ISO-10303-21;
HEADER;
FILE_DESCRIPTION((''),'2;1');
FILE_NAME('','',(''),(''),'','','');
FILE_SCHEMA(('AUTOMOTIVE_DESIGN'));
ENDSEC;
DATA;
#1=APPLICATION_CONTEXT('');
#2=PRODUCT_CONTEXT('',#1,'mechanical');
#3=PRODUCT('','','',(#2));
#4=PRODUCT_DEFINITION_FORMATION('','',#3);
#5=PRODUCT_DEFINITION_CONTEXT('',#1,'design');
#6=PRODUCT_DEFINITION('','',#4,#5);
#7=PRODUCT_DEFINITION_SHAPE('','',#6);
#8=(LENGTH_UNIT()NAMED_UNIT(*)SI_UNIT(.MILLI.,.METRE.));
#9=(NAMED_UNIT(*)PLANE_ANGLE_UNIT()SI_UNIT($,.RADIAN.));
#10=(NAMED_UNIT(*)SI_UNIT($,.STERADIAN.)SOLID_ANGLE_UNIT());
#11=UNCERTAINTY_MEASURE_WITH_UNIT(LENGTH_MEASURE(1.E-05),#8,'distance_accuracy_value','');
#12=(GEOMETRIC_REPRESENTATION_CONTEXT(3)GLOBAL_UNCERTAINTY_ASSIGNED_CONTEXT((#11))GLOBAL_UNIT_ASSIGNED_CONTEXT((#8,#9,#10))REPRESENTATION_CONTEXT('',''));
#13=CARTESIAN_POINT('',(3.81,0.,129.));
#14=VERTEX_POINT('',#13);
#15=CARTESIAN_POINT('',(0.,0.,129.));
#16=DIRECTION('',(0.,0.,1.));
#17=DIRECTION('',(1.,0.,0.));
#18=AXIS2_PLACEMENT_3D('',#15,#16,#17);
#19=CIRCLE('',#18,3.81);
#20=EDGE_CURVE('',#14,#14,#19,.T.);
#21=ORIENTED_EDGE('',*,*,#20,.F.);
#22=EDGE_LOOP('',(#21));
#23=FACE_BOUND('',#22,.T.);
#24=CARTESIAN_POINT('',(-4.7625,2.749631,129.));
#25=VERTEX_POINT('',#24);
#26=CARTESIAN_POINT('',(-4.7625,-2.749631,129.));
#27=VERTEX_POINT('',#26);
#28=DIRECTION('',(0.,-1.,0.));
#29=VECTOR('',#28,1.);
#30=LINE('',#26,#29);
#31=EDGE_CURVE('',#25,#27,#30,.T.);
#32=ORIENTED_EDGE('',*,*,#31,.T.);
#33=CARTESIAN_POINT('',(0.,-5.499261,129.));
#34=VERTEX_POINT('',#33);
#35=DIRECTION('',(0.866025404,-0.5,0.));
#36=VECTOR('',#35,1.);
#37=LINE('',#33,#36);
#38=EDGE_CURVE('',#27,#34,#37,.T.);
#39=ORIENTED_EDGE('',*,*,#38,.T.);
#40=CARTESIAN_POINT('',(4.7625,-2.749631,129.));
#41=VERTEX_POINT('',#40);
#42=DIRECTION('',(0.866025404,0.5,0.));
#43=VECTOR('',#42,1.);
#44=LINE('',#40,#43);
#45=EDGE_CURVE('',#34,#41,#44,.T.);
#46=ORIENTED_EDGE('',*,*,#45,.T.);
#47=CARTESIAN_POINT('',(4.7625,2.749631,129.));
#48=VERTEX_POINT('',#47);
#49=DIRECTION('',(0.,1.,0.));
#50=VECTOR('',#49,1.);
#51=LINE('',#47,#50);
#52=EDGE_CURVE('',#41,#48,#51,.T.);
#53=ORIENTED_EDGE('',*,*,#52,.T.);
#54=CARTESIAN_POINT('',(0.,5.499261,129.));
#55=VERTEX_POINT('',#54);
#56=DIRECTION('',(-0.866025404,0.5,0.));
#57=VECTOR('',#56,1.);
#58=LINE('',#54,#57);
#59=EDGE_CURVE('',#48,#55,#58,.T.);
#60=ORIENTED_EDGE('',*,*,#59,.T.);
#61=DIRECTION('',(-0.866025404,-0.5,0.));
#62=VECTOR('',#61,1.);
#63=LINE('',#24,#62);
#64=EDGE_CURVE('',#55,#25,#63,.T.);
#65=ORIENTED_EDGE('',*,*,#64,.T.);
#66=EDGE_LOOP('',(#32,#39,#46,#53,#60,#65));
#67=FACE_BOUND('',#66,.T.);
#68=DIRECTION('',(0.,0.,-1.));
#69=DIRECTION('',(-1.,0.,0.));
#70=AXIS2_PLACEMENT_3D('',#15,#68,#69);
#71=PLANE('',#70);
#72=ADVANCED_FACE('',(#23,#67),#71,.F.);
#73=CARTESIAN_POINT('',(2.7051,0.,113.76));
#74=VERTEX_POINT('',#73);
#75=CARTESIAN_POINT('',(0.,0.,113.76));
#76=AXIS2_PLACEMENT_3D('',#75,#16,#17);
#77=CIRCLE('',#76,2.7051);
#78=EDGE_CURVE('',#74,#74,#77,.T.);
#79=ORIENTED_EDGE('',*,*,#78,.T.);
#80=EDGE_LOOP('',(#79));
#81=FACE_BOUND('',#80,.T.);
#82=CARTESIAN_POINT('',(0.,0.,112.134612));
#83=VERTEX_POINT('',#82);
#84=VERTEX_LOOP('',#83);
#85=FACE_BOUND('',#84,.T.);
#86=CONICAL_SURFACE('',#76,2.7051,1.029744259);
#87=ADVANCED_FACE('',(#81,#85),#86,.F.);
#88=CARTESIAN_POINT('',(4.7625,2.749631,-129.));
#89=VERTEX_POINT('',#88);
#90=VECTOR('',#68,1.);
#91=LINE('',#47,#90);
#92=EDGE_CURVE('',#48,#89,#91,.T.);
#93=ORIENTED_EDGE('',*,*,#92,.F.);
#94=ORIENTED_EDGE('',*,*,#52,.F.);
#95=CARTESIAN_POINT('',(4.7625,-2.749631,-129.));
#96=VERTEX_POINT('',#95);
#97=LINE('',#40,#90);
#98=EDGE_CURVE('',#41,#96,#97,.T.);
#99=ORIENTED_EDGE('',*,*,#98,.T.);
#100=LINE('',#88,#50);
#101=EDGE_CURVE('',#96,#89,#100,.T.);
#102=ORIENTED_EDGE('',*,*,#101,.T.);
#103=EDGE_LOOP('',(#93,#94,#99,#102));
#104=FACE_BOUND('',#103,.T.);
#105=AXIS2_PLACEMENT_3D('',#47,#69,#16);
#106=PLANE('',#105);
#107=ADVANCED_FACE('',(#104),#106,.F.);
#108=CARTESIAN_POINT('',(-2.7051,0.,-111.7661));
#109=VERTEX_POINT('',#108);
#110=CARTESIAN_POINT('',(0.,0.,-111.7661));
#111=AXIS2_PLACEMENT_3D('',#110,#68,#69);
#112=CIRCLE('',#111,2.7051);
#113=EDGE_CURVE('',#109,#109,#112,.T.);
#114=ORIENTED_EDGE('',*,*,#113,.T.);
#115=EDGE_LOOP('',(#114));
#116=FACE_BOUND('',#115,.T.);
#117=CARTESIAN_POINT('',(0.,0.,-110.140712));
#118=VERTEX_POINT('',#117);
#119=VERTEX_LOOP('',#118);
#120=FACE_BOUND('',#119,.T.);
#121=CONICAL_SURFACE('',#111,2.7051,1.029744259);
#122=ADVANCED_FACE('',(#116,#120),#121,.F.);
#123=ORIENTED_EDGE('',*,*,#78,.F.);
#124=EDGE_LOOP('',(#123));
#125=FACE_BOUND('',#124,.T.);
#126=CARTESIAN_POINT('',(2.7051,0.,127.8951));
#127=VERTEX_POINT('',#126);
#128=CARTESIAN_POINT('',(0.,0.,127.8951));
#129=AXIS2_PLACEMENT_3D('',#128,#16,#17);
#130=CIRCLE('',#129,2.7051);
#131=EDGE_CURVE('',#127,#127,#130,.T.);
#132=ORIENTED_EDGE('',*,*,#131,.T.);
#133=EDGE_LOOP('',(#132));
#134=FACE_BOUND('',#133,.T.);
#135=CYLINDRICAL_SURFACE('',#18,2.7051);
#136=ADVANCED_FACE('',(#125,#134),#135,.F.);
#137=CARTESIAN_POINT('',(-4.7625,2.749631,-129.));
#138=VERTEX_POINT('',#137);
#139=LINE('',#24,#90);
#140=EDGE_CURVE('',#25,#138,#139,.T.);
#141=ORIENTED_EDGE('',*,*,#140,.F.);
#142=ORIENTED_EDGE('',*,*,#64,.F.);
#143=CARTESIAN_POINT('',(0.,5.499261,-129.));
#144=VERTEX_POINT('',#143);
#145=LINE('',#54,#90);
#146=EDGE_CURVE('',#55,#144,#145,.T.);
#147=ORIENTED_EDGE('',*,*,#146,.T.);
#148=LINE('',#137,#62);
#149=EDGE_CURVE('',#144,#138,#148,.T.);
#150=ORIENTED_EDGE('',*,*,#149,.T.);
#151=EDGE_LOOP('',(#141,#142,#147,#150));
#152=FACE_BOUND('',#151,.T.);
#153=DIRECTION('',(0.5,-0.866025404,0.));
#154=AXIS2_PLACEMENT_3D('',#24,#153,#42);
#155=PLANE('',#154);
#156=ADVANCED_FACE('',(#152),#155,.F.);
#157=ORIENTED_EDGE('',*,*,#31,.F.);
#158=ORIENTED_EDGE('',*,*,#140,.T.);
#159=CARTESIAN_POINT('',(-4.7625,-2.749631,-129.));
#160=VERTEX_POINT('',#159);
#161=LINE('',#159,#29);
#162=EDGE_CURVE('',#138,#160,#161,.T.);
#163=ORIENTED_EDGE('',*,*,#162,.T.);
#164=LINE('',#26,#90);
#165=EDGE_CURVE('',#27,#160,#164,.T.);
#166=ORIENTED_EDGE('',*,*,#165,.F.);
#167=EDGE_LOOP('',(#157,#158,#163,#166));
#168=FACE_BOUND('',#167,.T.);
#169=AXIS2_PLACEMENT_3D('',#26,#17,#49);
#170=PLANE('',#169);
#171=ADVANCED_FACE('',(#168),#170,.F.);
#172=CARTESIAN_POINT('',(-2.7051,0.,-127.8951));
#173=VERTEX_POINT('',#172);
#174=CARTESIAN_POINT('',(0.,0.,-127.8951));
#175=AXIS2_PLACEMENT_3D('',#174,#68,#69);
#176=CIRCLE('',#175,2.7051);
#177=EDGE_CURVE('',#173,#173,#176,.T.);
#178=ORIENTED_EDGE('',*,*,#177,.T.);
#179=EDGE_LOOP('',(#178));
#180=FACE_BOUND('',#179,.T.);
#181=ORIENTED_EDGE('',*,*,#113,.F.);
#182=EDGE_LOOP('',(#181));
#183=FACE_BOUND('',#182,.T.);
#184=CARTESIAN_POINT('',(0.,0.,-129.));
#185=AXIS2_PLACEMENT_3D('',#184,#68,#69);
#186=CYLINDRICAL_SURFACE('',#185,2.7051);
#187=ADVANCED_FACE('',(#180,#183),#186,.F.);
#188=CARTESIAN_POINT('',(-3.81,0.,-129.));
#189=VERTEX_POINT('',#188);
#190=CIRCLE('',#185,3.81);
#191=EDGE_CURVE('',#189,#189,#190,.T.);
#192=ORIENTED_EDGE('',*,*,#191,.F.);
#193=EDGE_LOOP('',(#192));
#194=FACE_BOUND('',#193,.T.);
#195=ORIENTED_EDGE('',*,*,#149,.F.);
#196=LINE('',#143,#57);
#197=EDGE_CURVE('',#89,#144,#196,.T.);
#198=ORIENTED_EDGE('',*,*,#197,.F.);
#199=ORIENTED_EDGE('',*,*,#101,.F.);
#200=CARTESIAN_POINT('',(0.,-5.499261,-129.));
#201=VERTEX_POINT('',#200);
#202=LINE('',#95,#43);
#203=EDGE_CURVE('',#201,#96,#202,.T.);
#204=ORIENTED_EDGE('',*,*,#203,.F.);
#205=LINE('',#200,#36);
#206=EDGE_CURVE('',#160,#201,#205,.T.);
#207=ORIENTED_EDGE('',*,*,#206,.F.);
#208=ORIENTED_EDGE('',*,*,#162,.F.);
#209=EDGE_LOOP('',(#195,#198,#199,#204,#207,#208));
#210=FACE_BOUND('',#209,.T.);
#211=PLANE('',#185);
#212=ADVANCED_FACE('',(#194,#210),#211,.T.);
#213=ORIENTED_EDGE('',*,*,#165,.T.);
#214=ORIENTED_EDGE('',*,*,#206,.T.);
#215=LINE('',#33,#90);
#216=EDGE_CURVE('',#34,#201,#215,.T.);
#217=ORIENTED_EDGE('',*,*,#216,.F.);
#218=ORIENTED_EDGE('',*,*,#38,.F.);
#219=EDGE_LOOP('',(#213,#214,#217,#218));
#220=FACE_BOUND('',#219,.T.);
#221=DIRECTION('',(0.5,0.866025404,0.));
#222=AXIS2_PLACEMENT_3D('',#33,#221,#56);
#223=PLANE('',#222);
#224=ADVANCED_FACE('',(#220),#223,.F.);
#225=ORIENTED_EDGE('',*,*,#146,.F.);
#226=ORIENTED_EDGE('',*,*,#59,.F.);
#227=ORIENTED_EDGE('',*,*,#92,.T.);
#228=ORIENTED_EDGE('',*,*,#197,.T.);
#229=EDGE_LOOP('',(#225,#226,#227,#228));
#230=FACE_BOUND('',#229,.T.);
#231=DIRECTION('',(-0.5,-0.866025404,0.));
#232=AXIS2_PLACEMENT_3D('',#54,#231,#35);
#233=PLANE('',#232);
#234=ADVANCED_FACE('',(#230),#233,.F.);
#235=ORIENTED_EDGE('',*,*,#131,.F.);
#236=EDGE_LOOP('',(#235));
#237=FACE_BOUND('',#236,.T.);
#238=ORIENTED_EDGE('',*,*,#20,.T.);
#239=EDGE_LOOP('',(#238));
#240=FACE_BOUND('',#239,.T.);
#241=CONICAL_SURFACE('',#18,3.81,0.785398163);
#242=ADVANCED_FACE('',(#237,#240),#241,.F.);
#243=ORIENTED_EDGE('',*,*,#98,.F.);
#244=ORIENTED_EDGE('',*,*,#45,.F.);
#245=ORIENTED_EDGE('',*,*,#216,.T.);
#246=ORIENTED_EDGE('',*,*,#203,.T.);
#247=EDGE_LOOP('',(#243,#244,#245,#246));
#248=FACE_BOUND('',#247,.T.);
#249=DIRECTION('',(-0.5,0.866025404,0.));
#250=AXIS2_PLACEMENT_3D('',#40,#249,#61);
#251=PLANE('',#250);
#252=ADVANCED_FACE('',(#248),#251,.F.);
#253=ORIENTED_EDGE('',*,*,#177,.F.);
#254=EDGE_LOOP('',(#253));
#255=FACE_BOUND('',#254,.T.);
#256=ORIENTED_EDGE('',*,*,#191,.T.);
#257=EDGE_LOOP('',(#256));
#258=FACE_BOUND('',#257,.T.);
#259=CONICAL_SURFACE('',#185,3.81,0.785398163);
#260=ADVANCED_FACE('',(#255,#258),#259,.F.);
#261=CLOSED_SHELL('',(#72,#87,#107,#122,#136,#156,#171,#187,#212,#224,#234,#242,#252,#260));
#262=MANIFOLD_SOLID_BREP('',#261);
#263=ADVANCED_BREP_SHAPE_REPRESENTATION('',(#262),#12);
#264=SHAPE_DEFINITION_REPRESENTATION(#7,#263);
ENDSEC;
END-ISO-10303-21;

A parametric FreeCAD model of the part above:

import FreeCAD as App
import Part
import Sketcher
from FreeCAD import Vector
Q = App.Units.Quantity

doc = App.newDocument("Part")
body = doc.addObject("PartDesign::Body", "Body")

sketch1 = body.newObject("Sketcher::SketchObject", "Sketch")
sketch1.AttachmentSupport = (doc.getObject("XY_Plane"), [""])
sketch1.MapMode = "FlatFace"
sketch1.addGeometry([
    Part.LineSegment(Vector(5, 3, 0), Vector(0, 5, 0)),
    Part.LineSegment(Vector(0, 5, 0), Vector(-5, 3, 0)),
    Part.LineSegment(Vector(-5, 3, 0), Vector(-5, -3, 0)),
    Part.LineSegment(Vector(-5, -3, 0), Vector(0, -5, 0)),
    Part.LineSegment(Vector(0, -5, 0), Vector(5, -3, 0)),
    Part.LineSegment(Vector(5, -3, 0), Vector(5, 3, 0)),
], False)
sketch1.addConstraint([
    Sketcher.Constraint("Coincident", 0, 2, 1, 1),
    Sketcher.Constraint("Coincident", 1, 2, 2, 1),
    Sketcher.Constraint("Coincident", 2, 2, 3, 1),
    Sketcher.Constraint("Coincident", 3, 2, 4, 1),
    Sketcher.Constraint("Coincident", 4, 2, 5, 1),
    Sketcher.Constraint("Coincident", 5, 2, 0, 1),
    Sketcher.Constraint("Vertical", 2),
    Sketcher.Constraint("Vertical", 5),
    Sketcher.Constraint("Symmetric", 0, 2, 3, 2, -1, 1),
    Sketcher.Constraint("Symmetric", 1, 2, 4, 2, -1, 1),
    Sketcher.Constraint("PointOnObject", 0, 2, -2),
    Sketcher.Constraint("Parallel", 0, 3),
    Sketcher.Constraint("Horizontal", 2, 2, 4, 2),
    Sketcher.Constraint("Angle", 0, Q("150 deg")),
    Sketcher.Constraint("DistanceX", 1, 2, -1, 1, Q("0.1875 in")),
    Sketcher.Constraint("DistanceY", 2, 2, 2, 1, Q("5.499261 mm")),
])
pad1 = body.newObject("PartDesign::Pad", "Pad")
pad1.Profile = sketch1
pad1.Length = 258
pad1.Midplane = True

sketch2 = body.newObject("Sketcher::SketchObject", "Sketch001")
sketch2.AttachmentSupport = (doc.getObject("XY_Plane"), [""])
sketch2.MapMode = "FlatFace"
sketch2.AttachmentOffset = App.Placement(Vector(0, 0, 129), App.Rotation())
sketch2.addGeometry(Part.Circle(Vector(0, 0, 0), Vector(0, 0, 1), 2.7), False)
sketch2.addConstraint([
    Sketcher.Constraint("Coincident", 0, 3, -1, 1),
    Sketcher.Constraint("Diameter", 0, Q("0.213 in")),
])
doc.recompute()
hole = body.newObject("PartDesign::Hole", "Hole")
hole.Profile = sketch2
hole.ThreadType = "None"
hole.Diameter = Q("0.213 in")
hole.DepthType = "Dimension"
hole.Depth = Q("0.6 in")
hole.DrillPoint = "Angled"
hole.DrillPointAngle = 118
hole.HoleCutType = "Countersink"
hole.HoleCutDiameter = Q("0.3 in")
hole.HoleCutCountersinkAngle = 90

sketch3 = body.newObject("Sketcher::SketchObject", "Sketch002")
sketch3.AttachmentSupport = (doc.getObject("XY_Plane"), [""])
sketch3.MapMode = "FlatFace"
sketch3.AttachmentOffset = App.Placement(Vector(0, 0, -129), App.Rotation())
sketch3.addGeometry(Part.Circle(Vector(0, 0, 0), Vector(0, 0, 1), 2.7), False)
sketch3.addConstraint([
    Sketcher.Constraint("Coincident", 0, 3, -1, 1),
    Sketcher.Constraint("Diameter", 0, Q("0.213 in")),
])
doc.recompute()
hole2 = body.newObject("PartDesign::Hole", "Hole001")
hole2.Profile = sketch3
hole2.ThreadType = "None"
hole2.Diameter = Q("0.213 in")
hole2.DepthType = "Dimension"
hole2.Depth = Q("0.6785 in")
hole2.DrillPoint = "Angled"
hole2.DrillPointAngle = 118
hole2.HoleCutType = "Countersink"
hole2.HoleCutDiameter = Q("0.3 in")
hole2.HoleCutCountersinkAngle = 90
hole2.Reversed = True

doc.recompute()
